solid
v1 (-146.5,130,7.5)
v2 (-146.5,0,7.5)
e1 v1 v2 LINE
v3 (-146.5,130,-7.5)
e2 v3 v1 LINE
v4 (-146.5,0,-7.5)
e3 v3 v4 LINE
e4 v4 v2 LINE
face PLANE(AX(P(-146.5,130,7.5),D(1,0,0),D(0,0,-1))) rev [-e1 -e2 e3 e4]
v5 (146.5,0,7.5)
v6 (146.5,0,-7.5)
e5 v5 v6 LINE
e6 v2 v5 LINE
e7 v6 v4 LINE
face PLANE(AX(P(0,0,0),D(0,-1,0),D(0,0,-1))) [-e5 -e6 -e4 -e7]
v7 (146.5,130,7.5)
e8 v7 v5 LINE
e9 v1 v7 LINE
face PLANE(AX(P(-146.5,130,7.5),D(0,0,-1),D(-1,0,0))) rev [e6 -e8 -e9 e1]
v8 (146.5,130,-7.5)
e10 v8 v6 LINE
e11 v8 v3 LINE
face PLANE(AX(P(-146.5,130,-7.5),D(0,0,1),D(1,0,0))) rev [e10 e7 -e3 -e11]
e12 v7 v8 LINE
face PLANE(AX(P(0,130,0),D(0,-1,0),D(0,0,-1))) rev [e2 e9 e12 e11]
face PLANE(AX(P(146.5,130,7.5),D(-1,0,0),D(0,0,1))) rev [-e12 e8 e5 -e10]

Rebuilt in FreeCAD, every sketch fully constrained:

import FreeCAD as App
import Part
import Sketcher
Q = App.Units.Quantity

doc = App.newDocument("Part")
body = doc.addObject("PartDesign::Body", "Body")

# Sketch on XZ plane
sketch1 = doc.addObject("Sketcher::SketchObject", "Sketch")
body.addObject(sketch1)
sketch1.AttachmentSupport = (doc.XZ_Plane, [""])
sketch1.MapMode = "FlatFace"
sketch1.addGeometry([
    Part.LineSegment(App.Vector(-146, -8, 0), App.Vector(-146, 8, 0)),
    Part.LineSegment(App.Vector(-146, 8, 0), App.Vector(146, 8, 0)),
    Part.LineSegment(App.Vector(146, 8, 0), App.Vector(146, -8, 0)),
    Part.LineSegment(App.Vector(146, -8, 0), App.Vector(-146, -8, 0)),
], False)
sketch1.addConstraint([
    Sketcher.Constraint("Coincident", 0, 2, 1, 1),
    Sketcher.Constraint("Coincident", 1, 2, 2, 1),
    Sketcher.Constraint("Coincident", 2, 2, 3, 1),
    Sketcher.Constraint("Coincident", 3, 2, 0, 1),
    Sketcher.Constraint("Vertical", 0),
    Sketcher.Constraint("Horizontal", 1),
    Sketcher.Constraint("Vertical", 2),
    Sketcher.Constraint("Horizontal", 3),
    Sketcher.Constraint("Symmetric", 0, 2, 2, 2, -1, 1),
    Sketcher.Constraint("DistanceX", 1, 1, 1, 2, Q("293 mm")),
    Sketcher.Constraint("DistanceY", 0, 1, 0, 2, Q("15 mm")),
])
pad1 = doc.addObject("PartDesign::Pad", "Pad")
body.addObject(pad1)
pad1.Profile = sketch1
pad1.Length = 130
pad1.Reversed = True

doc.recompute()
